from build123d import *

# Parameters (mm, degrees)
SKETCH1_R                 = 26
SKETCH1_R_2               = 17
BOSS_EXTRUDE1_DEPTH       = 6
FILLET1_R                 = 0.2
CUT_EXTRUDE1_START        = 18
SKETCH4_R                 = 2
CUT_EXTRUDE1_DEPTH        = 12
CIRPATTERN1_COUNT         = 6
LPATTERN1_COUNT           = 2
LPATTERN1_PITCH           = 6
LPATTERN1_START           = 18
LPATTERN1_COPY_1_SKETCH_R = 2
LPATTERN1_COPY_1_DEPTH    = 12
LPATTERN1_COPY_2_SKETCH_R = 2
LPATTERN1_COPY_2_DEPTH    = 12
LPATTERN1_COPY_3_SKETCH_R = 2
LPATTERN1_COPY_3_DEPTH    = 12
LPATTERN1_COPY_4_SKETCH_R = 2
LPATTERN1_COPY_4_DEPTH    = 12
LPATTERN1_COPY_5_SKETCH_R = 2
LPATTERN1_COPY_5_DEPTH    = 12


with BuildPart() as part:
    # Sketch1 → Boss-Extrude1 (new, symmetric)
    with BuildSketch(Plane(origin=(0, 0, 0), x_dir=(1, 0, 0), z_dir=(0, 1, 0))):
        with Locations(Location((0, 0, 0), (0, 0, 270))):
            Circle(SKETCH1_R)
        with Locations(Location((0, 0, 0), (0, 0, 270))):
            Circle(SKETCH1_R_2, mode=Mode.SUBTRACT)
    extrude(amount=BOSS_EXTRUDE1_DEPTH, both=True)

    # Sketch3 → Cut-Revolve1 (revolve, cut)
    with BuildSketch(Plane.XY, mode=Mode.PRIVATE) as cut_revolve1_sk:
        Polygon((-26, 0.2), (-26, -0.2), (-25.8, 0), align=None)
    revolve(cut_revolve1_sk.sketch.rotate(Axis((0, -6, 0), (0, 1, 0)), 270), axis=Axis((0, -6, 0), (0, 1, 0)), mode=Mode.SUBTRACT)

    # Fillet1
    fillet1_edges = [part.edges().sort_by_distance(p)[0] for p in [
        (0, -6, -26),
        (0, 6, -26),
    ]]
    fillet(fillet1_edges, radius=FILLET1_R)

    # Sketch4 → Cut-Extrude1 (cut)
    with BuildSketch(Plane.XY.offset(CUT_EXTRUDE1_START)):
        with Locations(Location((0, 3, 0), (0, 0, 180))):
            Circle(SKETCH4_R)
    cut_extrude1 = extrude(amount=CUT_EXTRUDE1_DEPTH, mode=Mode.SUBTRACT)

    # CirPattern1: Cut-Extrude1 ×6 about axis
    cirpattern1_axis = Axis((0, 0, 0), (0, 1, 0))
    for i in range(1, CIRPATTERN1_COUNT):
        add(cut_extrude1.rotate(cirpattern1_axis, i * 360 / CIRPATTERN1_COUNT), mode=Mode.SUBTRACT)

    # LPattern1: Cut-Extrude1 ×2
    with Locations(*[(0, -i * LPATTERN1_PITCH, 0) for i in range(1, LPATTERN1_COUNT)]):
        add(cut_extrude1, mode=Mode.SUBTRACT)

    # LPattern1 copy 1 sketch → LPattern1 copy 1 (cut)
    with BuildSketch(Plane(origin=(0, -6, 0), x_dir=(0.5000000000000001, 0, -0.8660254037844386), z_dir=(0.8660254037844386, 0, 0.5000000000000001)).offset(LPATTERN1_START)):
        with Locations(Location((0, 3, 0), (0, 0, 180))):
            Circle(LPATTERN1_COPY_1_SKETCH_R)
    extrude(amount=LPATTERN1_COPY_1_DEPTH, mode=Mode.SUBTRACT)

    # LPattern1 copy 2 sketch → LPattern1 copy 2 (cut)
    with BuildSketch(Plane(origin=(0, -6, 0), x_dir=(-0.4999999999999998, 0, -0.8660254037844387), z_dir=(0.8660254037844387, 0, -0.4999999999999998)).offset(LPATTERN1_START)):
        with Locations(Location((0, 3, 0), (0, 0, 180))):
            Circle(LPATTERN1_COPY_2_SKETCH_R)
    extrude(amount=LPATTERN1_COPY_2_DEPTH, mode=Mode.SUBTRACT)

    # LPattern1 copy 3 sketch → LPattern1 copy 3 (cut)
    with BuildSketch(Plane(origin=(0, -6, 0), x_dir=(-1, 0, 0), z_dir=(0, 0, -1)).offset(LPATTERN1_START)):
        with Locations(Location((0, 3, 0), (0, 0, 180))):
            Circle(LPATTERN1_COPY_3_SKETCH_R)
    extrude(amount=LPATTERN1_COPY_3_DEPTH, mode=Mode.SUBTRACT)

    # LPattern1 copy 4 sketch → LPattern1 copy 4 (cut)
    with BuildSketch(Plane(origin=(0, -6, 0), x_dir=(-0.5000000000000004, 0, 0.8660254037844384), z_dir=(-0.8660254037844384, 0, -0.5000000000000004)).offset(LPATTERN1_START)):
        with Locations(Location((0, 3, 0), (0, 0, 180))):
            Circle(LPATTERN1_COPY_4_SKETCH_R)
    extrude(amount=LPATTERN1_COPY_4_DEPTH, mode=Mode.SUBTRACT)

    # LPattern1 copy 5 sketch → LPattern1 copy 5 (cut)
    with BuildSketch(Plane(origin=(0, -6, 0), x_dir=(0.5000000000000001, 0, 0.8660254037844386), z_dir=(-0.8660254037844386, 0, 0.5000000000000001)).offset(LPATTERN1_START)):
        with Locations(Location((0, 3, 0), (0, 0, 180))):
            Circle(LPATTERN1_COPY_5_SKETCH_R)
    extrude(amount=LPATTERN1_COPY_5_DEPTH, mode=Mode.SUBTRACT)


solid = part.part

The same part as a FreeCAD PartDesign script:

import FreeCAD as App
import Part
import Sketcher
from FreeCAD import Vector


def edges_at(feature, points):
    """Names of the edges that pass closest to the given points."""
    edges = feature.Shape.Edges
    near = lambda p: min(range(len(edges)), key=lambda i: edges[i].distToShape(Part.Vertex(*p))[0])
    return sorted({f"Edge{near(p) + 1}" for p in points})


def add_polygon(sketch, points):
    """Adds a closed chain of lines whose ends are joined by coincident constraints."""
    first, n = sketch.GeometryCount, len(points)
    for a, b in zip(points, points[1:] + points[:1]):
        sketch.addGeometry(Part.LineSegment(App.Vector(*a, 0), App.Vector(*b, 0)), False)
    for i in range(n):
        sketch.addConstraint(Sketcher.Constraint("Coincident", first + i, 2, first + (i + 1) % n, 1))

doc = App.newDocument("Part")
body = doc.addObject("PartDesign::Body", "Body")

# Sketch on XZ plane
sketch1 = body.newObject("Sketcher::SketchObject", "Sketch")
sketch1.AttachmentSupport = (doc.getObject("XZ_Plane"), [""])
sketch1.MapMode = "FlatFace"
sketch1.addGeometry([
    Part.Circle(Vector(0, 0, 0), Vector(0, 0, 1), 26),
    Part.Circle(Vector(0, 0, 0), Vector(0, 0, 1), 17),
], False)
sketch1.addConstraint([
    Sketcher.Constraint("Coincident", 0, 3, -1, 1),
    Sketcher.Constraint("Coincident", 1, 3, -1, 1),
    Sketcher.Constraint("Diameter", 0, 52.0),
    Sketcher.Constraint("Diameter", 1, 34.0),
])
pad1 = body.newObject("PartDesign::Pad", "Pad")
pad1.Profile = sketch1
pad1.Length = 12
pad1.Midplane = True

# Sketch on XY plane
sketch2 = body.newObject("Sketcher::SketchObject", "Sketch001")
sketch2.AttachmentSupport = (doc.getObject("XY_Plane"), [""])
sketch2.MapMode = "FlatFace"
add_polygon(sketch2, [(-26, 0.2), (-26, -0.2), (-25.8, 0)])  # lines 0-2
sketch2.addConstraint([
    Sketcher.Constraint("Vertical", 0),
    Sketcher.Constraint("PointOnObject", 1, 2, -1),
    Sketcher.Constraint("Perpendicular", 1, 2),
    Sketcher.Constraint("Equal", 1, 2),
    Sketcher.Constraint("DistanceY", 0, 2, 0, 1, 0.4),
    Sketcher.Constraint("DistanceX", 0, 2, -1, 1, 26.0),
])
groove = body.newObject("PartDesign::Groove", "Groove")
groove.Profile = sketch2
groove.ReferenceAxis = (sketch2, ["V_Axis"])
groove.Angle = 360
doc.recompute()

fillet = body.newObject("PartDesign::Fillet", "Fillet")
fillet.Base = (groove, edges_at(groove, [(0, -6, -26), (0, 6, -26)]))
fillet.Radius = 0.2

# Sketch on XY plane
sketch3 = body.newObject("Sketcher::SketchObject", "Sketch002")
sketch3.AttachmentSupport = (doc.getObject("XY_Plane"), [""])
sketch3.MapMode = "FlatFace"
sketch3.AttachmentOffset = App.Placement(Vector(0, 0, 18), App.Rotation())
sketch3.addGeometry(Part.Circle(Vector(0, 3, 0), Vector(0, 0, 1), 2), False)
sketch3.addConstraint([
    Sketcher.Constraint("PointOnObject", 0, 3, -2),
    Sketcher.Constraint("Diameter", 0, 4.0),
    Sketcher.Constraint("DistanceY", -1, 1, 0, 3, 3.0),
])
pocket1 = body.newObject("PartDesign::Pocket", "Pocket")
pocket1.Profile = sketch3
pocket1.Length = 12
pocket1.Reversed = True
doc.recompute()

polarpattern = body.newObject("PartDesign::PolarPattern", "PolarPattern")
polarpattern.Originals = [pocket1]
polarpattern.Axis = (doc.getObject("Y_Axis"), [""])
polarpattern.Angle = 360
polarpattern.Occurrences = 6
body.Tip = polarpattern
doc.recompute()

linearpattern = body.newObject("PartDesign::LinearPattern", "LinearPattern")
linearpattern.Originals = [pocket1]
linearpattern.Direction = (doc.getObject("Y_Axis"), [""])
linearpattern.Mode = "offset"
linearpattern.Offset = 6
linearpattern.Occurrences = 2
linearpattern.Reversed = True
body.Tip = linearpattern

# Sketch on an angled plane
sketch4 = body.newObject("Sketcher::SketchObject", "Sketch003")
sketch4.Placement = App.Placement(Vector(15.588457, -6, 9), App.Rotation(Vector(0.5, 0, -0.866025404), Vector(0, 1, 0), Vector(0.866025404, 0, 0.5), "ZXY"))
sketch4.addGeometry(Part.Circle(Vector(0, 3, 0), Vector(0, 0, 1), 2), False)
sketch4.addConstraint([
    Sketcher.Constraint("PointOnObject", 0, 3, -2),
    Sketcher.Constraint("Diameter", 0, 4.0),
    Sketcher.Constraint("DistanceY", -1, 1, 0, 3, 3.0),
])
pocket2 = body.newObject("PartDesign::Pocket", "Pocket001")
pocket2.Profile = sketch4
pocket2.Length = 12
pocket2.Reversed = True

# Sketch on an angled plane
sketch5 = body.newObject("Sketcher::SketchObject", "Sketch004")
sketch5.Placement = App.Placement(Vector(15.588457, -6, -9), App.Rotation(Vector(-0.5, 0, -0.866025404), Vector(0, 1, 0), Vector(0.866025404, 0, -0.5), "ZXY"))
sketch5.addGeometry(Part.Circle(Vector(0, 3, 0), Vector(0, 0, 1), 2), False)
sketch5.addConstraint([
    Sketcher.Constraint("PointOnObject", 0, 3, -2),
    Sketcher.Constraint("Diameter", 0, 4.0),
    Sketcher.Constraint("DistanceY", -1, 1, 0, 3, 3.0),
])
pocket3 = body.newObject("PartDesign::Pocket", "Pocket002")
pocket3.Profile = sketch5
pocket3.Length = 12
pocket3.Reversed = True

# Sketch on XY plane
sketch6 = body.newObject("Sketcher::SketchObject", "Sketch005")
sketch6.AttachmentSupport = (doc.getObject("XY_Plane"), [""])
sketch6.MapMode = "FlatFace"
sketch6.AttachmentOffset = App.Placement(Vector(0, 0, -18), App.Rotation())
sketch6.addGeometry(Part.Circle(Vector(0, -3, 0), Vector(0, 0, 1), 2), False)
sketch6.addConstraint([
    Sketcher.Constraint("PointOnObject", 0, 3, -2),
    Sketcher.Constraint("Diameter", 0, 4.0),
    Sketcher.Constraint("DistanceY", 0, 3, -1, 1, 3.0),
])
pocket4 = body.newObject("PartDesign::Pocket", "Pocket003")
pocket4.Profile = sketch6
pocket4.Length = 12

# Sketch on an angled plane
sketch7 = body.newObject("Sketcher::SketchObject", "Sketch006")
sketch7.Placement = App.Placement(Vector(-15.588457, -6, -9), App.Rotation(Vector(-0.5, 0, 0.866025404), Vector(0, 1, 0), Vector(-0.866025404, 0, -0.5), "ZXY"))
sketch7.addGeometry(Part.Circle(Vector(0, 3, 0), Vector(0, 0, 1), 2), False)
sketch7.addConstraint([
    Sketcher.Constraint("PointOnObject", 0, 3, -2),
    Sketcher.Constraint("Diameter", 0, 4.0),
    Sketcher.Constraint("DistanceY", -1, 1, 0, 3, 3.0),
])
pocket5 = body.newObject("PartDesign::Pocket", "Pocket004")
pocket5.Profile = sketch7
pocket5.Length = 12
pocket5.Reversed = True

# Sketch on an angled plane
sketch8 = body.newObject("Sketcher::SketchObject", "Sketch007")
sketch8.Placement = App.Placement(Vector(-15.588457, -6, 9), App.Rotation(Vector(0.5, 0, 0.866025404), Vector(0, 1, 0), Vector(-0.866025404, 0, 0.5), "ZXY"))
sketch8.addGeometry(Part.Circle(Vector(0, 3, 0), Vector(0, 0, 1), 2), False)
sketch8.addConstraint([
    Sketcher.Constraint("PointOnObject", 0, 3, -2),
    Sketcher.Constraint("Diameter", 0, 4.0),
    Sketcher.Constraint("DistanceY", -1, 1, 0, 3, 3.0),
])
pocket6 = body.newObject("PartDesign::Pocket", "Pocket005")
pocket6.Profile = sketch8
pocket6.Length = 12
pocket6.Reversed = True

doc.recompute()
